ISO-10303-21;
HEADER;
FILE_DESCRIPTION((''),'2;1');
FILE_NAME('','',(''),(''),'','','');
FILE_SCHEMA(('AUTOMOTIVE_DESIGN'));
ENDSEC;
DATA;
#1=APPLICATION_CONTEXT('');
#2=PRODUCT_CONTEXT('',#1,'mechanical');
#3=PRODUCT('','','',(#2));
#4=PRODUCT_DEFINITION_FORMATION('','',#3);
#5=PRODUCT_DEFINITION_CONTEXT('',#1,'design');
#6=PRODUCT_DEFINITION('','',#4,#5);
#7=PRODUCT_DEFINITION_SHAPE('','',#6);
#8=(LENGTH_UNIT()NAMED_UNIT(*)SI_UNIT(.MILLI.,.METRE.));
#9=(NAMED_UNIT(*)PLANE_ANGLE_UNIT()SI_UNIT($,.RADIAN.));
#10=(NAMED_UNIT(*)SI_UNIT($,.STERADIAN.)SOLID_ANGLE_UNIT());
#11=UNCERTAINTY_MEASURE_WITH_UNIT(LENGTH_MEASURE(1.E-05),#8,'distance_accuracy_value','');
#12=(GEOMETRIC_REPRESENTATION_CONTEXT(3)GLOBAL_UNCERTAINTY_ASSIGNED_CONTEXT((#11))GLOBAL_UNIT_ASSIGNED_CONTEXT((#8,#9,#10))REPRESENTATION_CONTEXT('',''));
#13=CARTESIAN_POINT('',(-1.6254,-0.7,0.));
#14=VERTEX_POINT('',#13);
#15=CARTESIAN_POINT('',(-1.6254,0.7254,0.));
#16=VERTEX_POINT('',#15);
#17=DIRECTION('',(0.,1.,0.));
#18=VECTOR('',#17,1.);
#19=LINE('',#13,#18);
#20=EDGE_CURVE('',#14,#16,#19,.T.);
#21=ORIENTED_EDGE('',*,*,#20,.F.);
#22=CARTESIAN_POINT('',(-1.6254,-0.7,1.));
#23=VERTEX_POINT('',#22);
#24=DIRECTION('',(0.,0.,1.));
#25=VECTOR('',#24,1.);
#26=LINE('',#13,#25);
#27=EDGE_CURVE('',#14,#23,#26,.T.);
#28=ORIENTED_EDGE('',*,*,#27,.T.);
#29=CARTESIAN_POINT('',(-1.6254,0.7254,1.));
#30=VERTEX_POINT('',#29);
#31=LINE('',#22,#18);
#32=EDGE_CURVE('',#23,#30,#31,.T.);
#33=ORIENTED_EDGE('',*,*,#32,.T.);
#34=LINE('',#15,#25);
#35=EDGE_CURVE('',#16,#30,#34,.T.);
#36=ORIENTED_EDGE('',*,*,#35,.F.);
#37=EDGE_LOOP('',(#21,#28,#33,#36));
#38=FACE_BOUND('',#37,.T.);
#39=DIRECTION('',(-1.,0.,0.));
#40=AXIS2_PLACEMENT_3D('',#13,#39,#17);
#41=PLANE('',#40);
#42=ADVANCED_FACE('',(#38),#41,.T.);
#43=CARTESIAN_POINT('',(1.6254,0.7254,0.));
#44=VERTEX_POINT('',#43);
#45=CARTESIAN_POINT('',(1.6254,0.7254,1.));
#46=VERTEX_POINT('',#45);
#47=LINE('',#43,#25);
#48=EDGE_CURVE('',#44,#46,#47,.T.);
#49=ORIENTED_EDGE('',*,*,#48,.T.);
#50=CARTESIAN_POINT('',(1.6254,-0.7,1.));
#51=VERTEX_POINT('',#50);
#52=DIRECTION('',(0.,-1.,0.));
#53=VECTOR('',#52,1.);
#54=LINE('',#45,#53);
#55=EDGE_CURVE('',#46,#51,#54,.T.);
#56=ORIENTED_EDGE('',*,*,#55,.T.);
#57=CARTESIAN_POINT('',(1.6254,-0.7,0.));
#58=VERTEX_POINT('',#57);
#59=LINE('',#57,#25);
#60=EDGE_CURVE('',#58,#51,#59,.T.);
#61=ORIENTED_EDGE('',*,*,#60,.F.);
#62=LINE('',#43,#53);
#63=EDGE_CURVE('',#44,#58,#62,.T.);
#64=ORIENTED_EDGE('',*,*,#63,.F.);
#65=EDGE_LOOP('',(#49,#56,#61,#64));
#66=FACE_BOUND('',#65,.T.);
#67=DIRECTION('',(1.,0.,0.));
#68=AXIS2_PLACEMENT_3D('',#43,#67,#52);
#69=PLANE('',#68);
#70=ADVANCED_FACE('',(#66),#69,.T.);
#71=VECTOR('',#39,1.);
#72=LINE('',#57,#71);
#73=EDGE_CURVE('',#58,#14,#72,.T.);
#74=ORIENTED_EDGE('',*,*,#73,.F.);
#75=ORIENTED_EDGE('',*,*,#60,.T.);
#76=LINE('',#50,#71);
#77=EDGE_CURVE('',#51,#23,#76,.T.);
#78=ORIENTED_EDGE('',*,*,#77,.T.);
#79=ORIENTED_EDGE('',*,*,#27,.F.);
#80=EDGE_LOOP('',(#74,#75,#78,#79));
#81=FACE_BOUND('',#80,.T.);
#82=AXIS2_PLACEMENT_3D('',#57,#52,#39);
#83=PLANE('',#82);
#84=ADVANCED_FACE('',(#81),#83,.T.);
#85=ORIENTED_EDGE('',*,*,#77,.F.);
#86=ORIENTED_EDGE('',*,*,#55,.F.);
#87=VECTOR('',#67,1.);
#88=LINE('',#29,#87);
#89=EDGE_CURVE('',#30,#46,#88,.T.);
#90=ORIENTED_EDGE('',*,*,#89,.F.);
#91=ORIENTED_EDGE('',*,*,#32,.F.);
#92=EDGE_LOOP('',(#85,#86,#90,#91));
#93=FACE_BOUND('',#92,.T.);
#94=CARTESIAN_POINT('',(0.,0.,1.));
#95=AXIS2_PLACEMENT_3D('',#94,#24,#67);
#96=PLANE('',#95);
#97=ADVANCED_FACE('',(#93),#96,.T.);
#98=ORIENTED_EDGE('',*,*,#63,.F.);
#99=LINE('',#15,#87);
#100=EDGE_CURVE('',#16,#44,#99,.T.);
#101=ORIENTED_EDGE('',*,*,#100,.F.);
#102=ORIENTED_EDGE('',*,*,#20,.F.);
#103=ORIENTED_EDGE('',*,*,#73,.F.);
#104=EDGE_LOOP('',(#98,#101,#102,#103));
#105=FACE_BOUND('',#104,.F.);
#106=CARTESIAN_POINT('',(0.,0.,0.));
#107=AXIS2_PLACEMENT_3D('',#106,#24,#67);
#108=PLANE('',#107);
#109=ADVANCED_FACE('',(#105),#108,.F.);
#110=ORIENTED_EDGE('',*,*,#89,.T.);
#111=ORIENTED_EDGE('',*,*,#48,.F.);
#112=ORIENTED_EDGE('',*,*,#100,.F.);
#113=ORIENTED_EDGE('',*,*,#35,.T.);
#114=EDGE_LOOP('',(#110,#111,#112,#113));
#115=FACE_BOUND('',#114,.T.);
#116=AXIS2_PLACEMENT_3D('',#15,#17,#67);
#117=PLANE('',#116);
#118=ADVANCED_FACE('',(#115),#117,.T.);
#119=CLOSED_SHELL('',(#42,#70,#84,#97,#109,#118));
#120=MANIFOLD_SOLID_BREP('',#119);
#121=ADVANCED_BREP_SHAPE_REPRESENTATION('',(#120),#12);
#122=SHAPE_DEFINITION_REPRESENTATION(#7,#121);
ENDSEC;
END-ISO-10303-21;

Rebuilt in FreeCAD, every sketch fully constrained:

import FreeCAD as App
import Part
import Sketcher
from FreeCAD import Vector

doc = App.newDocument("Part")
params = doc.addObject("Spreadsheet::Sheet", "Params")
for row, (alias, value) in enumerate([
    ("pad1_length", "1 mm"),
], start=1):
    params.set(f"A{row}", alias)
    params.set(f"B{row}", "=" + value)
    params.setAlias(f"B{row}", alias)

body = doc.addObject("PartDesign::Body", "Body")

# Sketch on XY plane
sketch1 = body.newObject("Sketcher::SketchObject", "Sketch")
sketch1.AttachmentSupport = (doc.getObject("XY_Plane"), [""])
sketch1.MapMode = "FlatFace"
sketch1.addGeometry([
    Part.LineSegment(Vector(1.6, 0.7, 0), Vector(-1.6, 0.7, 0)),
    Part.LineSegment(Vector(-1.6, 0.7, 0), Vector(-1.6, -0.7, 0)),
    Part.LineSegment(Vector(-1.6, -0.7, 0), Vector(1.6, -0.7, 0)),
    Part.LineSegment(Vector(1.6, -0.7, 0), Vector(1.6, 0.7, 0)),
], False)
sketch1.addConstraint([
    Sketcher.Constraint("Coincident", 0, 2, 1, 1),
    Sketcher.Constraint("Coincident", 1, 2, 2, 1),
    Sketcher.Constraint("Coincident", 2, 2, 3, 1),
    Sketcher.Constraint("Coincident", 3, 2, 0, 1),
    Sketcher.Constraint("Horizontal", 0),
    Sketcher.Constraint("Vertical", 1),
    Sketcher.Constraint("Horizontal", 2),
    Sketcher.Constraint("Vertical", 3),
    Sketcher.Constraint("DistanceY", 1, 2, -1, 1, 0.7),
    Sketcher.Constraint("DistanceX", 0, 2, 0, 1, 3.2508),
    Sketcher.Constraint("DistanceY", 1, 2, 1, 1, 1.4254),
    Sketcher.Constraint("DistanceX", 0, 2, -1, 1, 1.6254),
])
pad1 = body.newObject("PartDesign::Pad", "Pad")
pad1.Profile = sketch1
pad1.setExpression("Length", "Params.pad1_length")

doc.recompute()
